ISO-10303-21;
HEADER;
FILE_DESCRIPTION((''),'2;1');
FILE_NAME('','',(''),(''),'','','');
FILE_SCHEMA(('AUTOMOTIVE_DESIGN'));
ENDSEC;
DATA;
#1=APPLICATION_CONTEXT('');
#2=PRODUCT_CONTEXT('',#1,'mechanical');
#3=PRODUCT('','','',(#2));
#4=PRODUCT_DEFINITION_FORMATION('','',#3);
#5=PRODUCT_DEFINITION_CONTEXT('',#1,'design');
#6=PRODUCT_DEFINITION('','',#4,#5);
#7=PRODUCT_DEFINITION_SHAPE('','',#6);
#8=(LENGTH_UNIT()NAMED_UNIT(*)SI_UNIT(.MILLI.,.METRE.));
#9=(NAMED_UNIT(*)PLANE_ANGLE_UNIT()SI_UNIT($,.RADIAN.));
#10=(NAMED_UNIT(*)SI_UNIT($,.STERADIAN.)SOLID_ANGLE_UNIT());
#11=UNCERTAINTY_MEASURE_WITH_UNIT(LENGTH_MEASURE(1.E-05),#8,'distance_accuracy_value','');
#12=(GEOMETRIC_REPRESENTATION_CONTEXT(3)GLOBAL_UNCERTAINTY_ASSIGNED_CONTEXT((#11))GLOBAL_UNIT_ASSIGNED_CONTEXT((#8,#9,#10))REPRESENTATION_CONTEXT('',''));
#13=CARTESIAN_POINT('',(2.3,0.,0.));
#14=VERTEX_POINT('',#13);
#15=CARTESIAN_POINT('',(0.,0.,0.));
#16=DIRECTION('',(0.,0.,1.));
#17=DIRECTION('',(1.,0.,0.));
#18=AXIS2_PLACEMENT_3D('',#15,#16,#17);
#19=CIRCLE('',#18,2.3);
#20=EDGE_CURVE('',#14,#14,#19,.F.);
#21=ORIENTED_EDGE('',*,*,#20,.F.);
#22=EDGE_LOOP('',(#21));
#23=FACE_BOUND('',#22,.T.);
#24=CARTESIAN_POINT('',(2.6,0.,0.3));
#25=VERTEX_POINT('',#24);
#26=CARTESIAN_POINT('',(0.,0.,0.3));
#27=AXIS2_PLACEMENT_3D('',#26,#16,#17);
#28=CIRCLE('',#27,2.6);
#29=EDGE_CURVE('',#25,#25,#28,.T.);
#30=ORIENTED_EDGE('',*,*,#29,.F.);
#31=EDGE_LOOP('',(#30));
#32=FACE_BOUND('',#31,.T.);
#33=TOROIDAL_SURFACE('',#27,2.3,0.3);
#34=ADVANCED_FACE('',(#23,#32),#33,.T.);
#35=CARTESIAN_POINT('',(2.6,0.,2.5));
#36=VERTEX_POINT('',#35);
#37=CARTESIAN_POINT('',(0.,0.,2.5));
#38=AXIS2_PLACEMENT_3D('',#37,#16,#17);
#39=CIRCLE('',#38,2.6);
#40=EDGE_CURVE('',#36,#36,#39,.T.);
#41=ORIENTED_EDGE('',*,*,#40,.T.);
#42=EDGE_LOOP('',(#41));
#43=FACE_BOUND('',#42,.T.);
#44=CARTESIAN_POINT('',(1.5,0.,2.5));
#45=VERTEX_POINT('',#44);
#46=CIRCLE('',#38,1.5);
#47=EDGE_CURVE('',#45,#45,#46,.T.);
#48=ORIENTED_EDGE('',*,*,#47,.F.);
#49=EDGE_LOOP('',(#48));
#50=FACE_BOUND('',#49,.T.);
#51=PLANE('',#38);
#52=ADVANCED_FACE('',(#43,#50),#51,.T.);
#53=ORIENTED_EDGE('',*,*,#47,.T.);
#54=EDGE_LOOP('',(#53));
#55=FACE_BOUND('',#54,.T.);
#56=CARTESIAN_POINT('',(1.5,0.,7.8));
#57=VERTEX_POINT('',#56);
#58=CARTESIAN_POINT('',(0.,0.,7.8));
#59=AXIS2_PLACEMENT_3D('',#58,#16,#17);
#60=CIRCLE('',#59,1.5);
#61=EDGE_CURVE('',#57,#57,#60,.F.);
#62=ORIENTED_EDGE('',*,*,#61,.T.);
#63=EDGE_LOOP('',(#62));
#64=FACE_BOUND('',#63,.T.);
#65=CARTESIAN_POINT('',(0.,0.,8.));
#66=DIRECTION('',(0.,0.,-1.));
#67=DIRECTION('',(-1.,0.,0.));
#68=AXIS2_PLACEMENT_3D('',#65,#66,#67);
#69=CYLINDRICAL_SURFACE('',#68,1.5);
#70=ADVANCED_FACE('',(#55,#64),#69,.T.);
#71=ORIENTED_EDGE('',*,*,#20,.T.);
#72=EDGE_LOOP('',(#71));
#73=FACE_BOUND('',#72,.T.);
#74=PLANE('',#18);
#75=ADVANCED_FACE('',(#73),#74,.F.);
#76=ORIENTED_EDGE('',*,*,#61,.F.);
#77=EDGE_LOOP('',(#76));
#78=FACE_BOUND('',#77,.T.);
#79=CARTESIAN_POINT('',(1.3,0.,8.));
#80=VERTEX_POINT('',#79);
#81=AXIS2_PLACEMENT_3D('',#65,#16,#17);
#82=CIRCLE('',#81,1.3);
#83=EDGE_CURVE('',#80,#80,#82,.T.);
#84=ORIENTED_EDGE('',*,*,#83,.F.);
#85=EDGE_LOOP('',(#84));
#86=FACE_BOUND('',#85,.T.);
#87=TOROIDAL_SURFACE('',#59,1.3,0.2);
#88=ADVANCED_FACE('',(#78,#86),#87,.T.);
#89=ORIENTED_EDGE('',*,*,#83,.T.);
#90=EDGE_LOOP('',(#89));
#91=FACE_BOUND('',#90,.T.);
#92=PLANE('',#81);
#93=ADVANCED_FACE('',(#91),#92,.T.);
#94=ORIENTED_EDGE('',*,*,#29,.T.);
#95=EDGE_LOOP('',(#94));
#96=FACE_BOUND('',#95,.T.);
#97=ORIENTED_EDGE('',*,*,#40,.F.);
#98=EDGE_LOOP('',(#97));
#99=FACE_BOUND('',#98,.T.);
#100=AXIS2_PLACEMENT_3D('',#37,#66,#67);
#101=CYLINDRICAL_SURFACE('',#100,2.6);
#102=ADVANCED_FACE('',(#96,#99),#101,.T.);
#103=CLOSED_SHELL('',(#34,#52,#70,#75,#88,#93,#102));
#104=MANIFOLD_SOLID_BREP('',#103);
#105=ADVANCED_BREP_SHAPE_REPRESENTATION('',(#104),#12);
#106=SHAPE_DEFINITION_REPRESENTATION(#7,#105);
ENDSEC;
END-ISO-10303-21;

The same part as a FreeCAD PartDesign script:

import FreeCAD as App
import Part
import Sketcher
from FreeCAD import Vector


def edges_at(feature, points):
    """Names of the edges that pass closest to the given points."""
    edges = feature.Shape.Edges
    near = lambda p: min(range(len(edges)), key=lambda i: edges[i].distToShape(Part.Vertex(*p))[0])
    return sorted({f"Edge{near(p) + 1}" for p in points})

doc = App.newDocument("Part")
params = doc.addObject("Spreadsheet::Sheet", "Params")
for row, (alias, value) in enumerate([
    ("sketch1_diameter", "5.2 mm"),
    ("pad1_length", "2.5 mm"),
    ("fillet_radius", "0.3 mm"),
    ("sketch2_diameter", "3 mm"),
    ("pad2_length", "5.5 mm"),
    ("fillet2_radius", "0.2 mm"),
], start=1):
    params.set(f"A{row}", alias)
    params.set(f"B{row}", "=" + value)
    params.setAlias(f"B{row}", alias)

body = doc.addObject("PartDesign::Body", "Body")

sketch1 = doc.addObject("Sketcher::SketchObject", "Sketch")
body.addObject(sketch1)
sketch1.AttachmentSupport = (doc.XY_Plane, [""])
sketch1.MapMode = "FlatFace"
sketch1.addGeometry(Part.Circle(Vector(0, 0, 0), Vector(0, 0, 1), 2.6), False)
sketch1.addConstraint([
    Sketcher.Constraint("Coincident", 0, 3, -1, 1),
    Sketcher.Constraint("Diameter", 0, 5.2),
])
sketch1.setExpression("Constraints[1]", "Params.sketch1_diameter")
pad1 = doc.addObject("PartDesign::Pad", "Pad")
body.addObject(pad1)
pad1.Profile = sketch1
pad1.setExpression("Length", "Params.pad1_length")
doc.recompute()

fillet = doc.addObject("PartDesign::Fillet", "Fillet")
body.addObject(fillet)
fillet.Base = (pad1, edges_at(pad1, [(-2.6, 0, 0)]))
fillet.setExpression("Radius", "Params.fillet_radius")

sketch2 = doc.addObject("Sketcher::SketchObject", "Sketch001")
body.addObject(sketch2)
sketch2.AttachmentSupport = (doc.XY_Plane, [""])
sketch2.MapMode = "FlatFace"
sketch2.AttachmentOffset = App.Placement(Vector(0, 0, 2.5), App.Rotation())
sketch2.addGeometry(Part.Circle(Vector(0, 0, 0), Vector(0, 0, 1), 1.5), False)
sketch2.addConstraint([
    Sketcher.Constraint("Coincident", 0, 3, -1, 1),
    Sketcher.Constraint("Diameter", 0, 3.0),
])
sketch2.setExpression("Constraints[1]", "Params.sketch2_diameter")
pad2 = doc.addObject("PartDesign::Pad", "Pad001")
body.addObject(pad2)
pad2.Profile = sketch2
pad2.setExpression("Length", "Params.pad2_length")
doc.recompute()

fillet2 = doc.addObject("PartDesign::Fillet", "Fillet001")
body.addObject(fillet2)
fillet2.Base = (pad2, edges_at(pad2, [(-1.5, 0, 8)]))
fillet2.setExpression("Radius", "Params.fillet2_radius")

doc.recompute()
